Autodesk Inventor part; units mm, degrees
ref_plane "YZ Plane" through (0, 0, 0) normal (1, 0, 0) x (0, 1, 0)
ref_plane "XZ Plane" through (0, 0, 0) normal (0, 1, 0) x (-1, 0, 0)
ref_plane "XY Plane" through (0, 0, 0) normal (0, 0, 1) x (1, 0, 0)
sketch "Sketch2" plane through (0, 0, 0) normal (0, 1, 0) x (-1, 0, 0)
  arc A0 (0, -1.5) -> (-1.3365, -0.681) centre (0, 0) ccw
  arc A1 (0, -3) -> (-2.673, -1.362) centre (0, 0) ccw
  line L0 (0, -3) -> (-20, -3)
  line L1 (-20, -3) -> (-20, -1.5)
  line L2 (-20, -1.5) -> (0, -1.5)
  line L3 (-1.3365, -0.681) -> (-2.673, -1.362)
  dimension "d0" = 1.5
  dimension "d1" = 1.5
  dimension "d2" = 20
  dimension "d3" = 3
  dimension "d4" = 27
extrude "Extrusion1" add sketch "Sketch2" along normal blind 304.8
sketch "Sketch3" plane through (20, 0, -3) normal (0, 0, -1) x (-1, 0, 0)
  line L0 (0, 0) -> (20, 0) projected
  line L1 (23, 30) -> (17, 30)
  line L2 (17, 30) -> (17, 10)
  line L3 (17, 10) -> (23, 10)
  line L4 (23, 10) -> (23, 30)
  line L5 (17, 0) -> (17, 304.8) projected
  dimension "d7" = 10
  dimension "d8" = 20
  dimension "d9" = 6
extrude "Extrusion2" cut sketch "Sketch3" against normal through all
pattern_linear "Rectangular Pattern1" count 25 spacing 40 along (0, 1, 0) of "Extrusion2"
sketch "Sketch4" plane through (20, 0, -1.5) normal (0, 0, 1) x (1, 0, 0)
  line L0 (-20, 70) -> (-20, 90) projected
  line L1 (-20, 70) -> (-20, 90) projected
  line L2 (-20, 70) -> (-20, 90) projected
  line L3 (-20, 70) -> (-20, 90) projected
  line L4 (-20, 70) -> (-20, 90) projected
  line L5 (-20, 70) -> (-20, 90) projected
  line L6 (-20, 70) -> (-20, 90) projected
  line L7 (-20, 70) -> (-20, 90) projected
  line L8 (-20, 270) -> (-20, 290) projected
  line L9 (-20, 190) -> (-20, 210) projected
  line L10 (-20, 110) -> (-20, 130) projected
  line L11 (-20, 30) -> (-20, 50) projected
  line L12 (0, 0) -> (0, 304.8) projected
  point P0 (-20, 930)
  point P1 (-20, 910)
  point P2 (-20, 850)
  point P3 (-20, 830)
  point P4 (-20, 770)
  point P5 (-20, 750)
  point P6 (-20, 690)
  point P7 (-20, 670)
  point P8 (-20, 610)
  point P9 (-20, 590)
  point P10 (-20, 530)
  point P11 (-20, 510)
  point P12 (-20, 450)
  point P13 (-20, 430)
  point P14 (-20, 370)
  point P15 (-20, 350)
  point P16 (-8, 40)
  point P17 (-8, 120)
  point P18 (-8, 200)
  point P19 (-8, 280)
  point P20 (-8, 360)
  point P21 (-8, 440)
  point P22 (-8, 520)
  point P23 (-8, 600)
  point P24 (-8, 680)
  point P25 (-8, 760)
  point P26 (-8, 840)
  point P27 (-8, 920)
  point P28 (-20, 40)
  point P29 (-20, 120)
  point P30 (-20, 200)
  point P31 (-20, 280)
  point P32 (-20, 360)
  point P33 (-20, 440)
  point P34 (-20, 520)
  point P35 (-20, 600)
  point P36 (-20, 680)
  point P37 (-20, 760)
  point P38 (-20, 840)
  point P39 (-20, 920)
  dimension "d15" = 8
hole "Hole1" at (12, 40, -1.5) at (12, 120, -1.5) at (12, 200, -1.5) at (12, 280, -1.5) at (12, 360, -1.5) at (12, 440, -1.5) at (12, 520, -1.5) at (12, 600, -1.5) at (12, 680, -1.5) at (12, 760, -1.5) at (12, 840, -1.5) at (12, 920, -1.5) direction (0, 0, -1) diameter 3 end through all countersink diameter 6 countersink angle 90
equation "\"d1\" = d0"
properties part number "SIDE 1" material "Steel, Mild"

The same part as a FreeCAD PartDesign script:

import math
import FreeCAD as App
import Part
import Sketcher
from FreeCAD import Vector
Q = App.Units.Quantity

doc = App.newDocument("Part")
body = doc.addObject("PartDesign::Body", "Body")

# Sketch on XZ plane
sketch1 = body.newObject("Sketcher::SketchObject", "Sketch")
sketch1.AttachmentSupport = (doc.getObject("XZ_Plane"), [""])
sketch1.MapMode = "FlatFace"
sketch1.addGeometry(Part.ArcOfCircle(Part.Circle(Vector(0, 0, 0), Vector(0, 0, 1), 1.5), math.radians(-27), math.radians(270)), False)
sketch1.addGeometry(Part.LineSegment(Vector(0, -1.5, 0), Vector(20, -1.5, 0)), False)
sketch1.addGeometry(Part.LineSegment(Vector(20, -1.5, 0), Vector(20, -3, 0)), False)
sketch1.addGeometry(Part.LineSegment(Vector(20, -3, 0), Vector(0, -3, 0)), False)
sketch1.addGeometry(Part.ArcOfCircle(Part.Circle(Vector(0, 0, 0), Vector(0, 0, 1), 3), math.radians(-27), math.radians(270)), False)
sketch1.addGeometry(Part.LineSegment(Vector(2.7, -1.4, 0), Vector(1.3, -0.7, 0)), False)
sketch1.addConstraint(Sketcher.Constraint("Tangent", 0, 2, 1, 1))
sketch1.addConstraint(Sketcher.Constraint("Coincident", 1, 2, 2, 1))
sketch1.addConstraint(Sketcher.Constraint("Coincident", 2, 2, 3, 1))
sketch1.addConstraint(Sketcher.Constraint("Tangent", 3, 2, 4, 2))
sketch1.addConstraint(Sketcher.Constraint("Coincident", 4, 1, 5, 1))
sketch1.addConstraint(Sketcher.Constraint("Coincident", 5, 2, 0, 1))
sketch1.addConstraint(Sketcher.Constraint("Horizontal", 1))
sketch1.addConstraint(Sketcher.Constraint("Vertical", 2))
sketch1.addConstraint(Sketcher.Constraint("Horizontal", 3))
sketch1.addConstraint(Sketcher.Constraint("Coincident", 0, 3, -1, 1))
sketch1.addConstraint(Sketcher.Constraint("Coincident", 4, 3, -1, 1))
sketch1.addConstraint(Sketcher.Constraint("Radius", 4, Q("3 mm")))
sketch1.addConstraint(Sketcher.Constraint("Radius", 0, Q("1.5 mm")))
sketch1.addConstraint(Sketcher.Constraint("DistanceX", 1, 1, 1, 2, Q("20 mm")))
sketch1.addConstraint(Sketcher.Constraint("Angle", 5, Q("152.9993 deg")))
sketch1.addConstraint(Sketcher.Constraint("DistanceX", -1, 1, 4, 1, Q("2.673 mm")))
pad1 = body.newObject("PartDesign::Pad", "Pad")
pad1.Profile = sketch1
pad1.Length = 304.8
pad1.Reversed = True

# Sketch on XY plane
sketch2 = body.newObject("Sketcher::SketchObject", "Sketch001")
sketch2.AttachmentSupport = (doc.getObject("XY_Plane"), [""])
sketch2.MapMode = "FlatFace"
sketch2.AttachmentOffset = App.Placement(Vector(0, 0, -3), App.Rotation())
sketch2.addGeometry(Part.LineSegment(Vector(-3, 10, 0), Vector(-3, 30, 0)), False)
sketch2.addGeometry(Part.LineSegment(Vector(-3, 30, 0), Vector(3, 30, 0)), False)
sketch2.addGeometry(Part.LineSegment(Vector(3, 30, 0), Vector(3, 10, 0)), False)
sketch2.addGeometry(Part.LineSegment(Vector(3, 10, 0), Vector(-3, 10, 0)), False)
sketch2.addConstraint(Sketcher.Constraint("Coincident", 0, 2, 1, 1))
sketch2.addConstraint(Sketcher.Constraint("Coincident", 1, 2, 2, 1))
sketch2.addConstraint(Sketcher.Constraint("Coincident", 2, 2, 3, 1))
sketch2.addConstraint(Sketcher.Constraint("Coincident", 3, 2, 0, 1))
sketch2.addConstraint(Sketcher.Constraint("Vertical", 0))
sketch2.addConstraint(Sketcher.Constraint("Horizontal", 1))
sketch2.addConstraint(Sketcher.Constraint("Vertical", 2))
sketch2.addConstraint(Sketcher.Constraint("Horizontal", 3))
sketch2.addConstraint(Sketcher.Constraint("DistanceX", 1, 1, 1, 2, Q("6 mm")))
sketch2.addConstraint(Sketcher.Constraint("DistanceY", 0, 1, 0, 2, Q("20 mm")))
sketch2.addConstraint(Sketcher.Constraint("DistanceY", -1, 1, 2, 2, Q("10 mm")))
sketch2.addConstraint(Sketcher.Constraint("DistanceX", 0, 2, -1, 1, Q("3 mm")))
pocket1 = body.newObject("PartDesign::Pocket", "Pocket")
pocket1.Profile = sketch2
pocket1.Type = "ThroughAll"
pocket1.Reversed = True
doc.recompute()

linearpattern = body.newObject("PartDesign::LinearPattern", "LinearPattern")
linearpattern.Originals = [pocket1]
linearpattern.Direction = (doc.getObject("Y_Axis"), [""])
linearpattern.Mode = "offset"
linearpattern.Offset = 40
linearpattern.Occurrences = 25
body.Tip = linearpattern

# Sketch on XY plane
sketch3 = body.newObject("Sketcher::SketchObject", "Sketch002")
sketch3.AttachmentSupport = (doc.getObject("XY_Plane"), [""])
sketch3.MapMode = "FlatFace"
sketch3.AttachmentOffset = App.Placement(Vector(0, 0, -1.5), App.Rotation())
sketch3.addGeometry(Part.Circle(Vector(12, 40, 0), Vector(0, 0, 1), 1.5), False)
sketch3.addGeometry(Part.Circle(Vector(12, 120, 0), Vector(0, 0, 1), 1.5), False)
sketch3.addGeometry(Part.Circle(Vector(12, 200, 0), Vector(0, 0, 1), 1.5), False)
sketch3.addGeometry(Part.Circle(Vector(12, 280, 0), Vector(0, 0, 1), 1.5), False)
sketch3.addGeometry(Part.Circle(Vector(12, 360, 0), Vector(0, 0, 1), 1.5), False)
sketch3.addGeometry(Part.Circle(Vector(12, 440, 0), Vector(0, 0, 1), 1.5), False)
sketch3.addGeometry(Part.Circle(Vector(12, 520, 0), Vector(0, 0, 1), 1.5), False)
sketch3.addGeometry(Part.Circle(Vector(12, 600, 0), Vector(0, 0, 1), 1.5), False)
sketch3.addGeometry(Part.Circle(Vector(12, 680, 0), Vector(0, 0, 1), 1.5), False)
sketch3.addGeometry(Part.Circle(Vector(12, 760, 0), Vector(0, 0, 1), 1.5), False)
sketch3.addGeometry(Part.Circle(Vector(12, 840, 0), Vector(0, 0, 1), 1.5), False)
sketch3.addGeometry(Part.Circle(Vector(12, 920, 0), Vector(0, 0, 1), 1.5), False)
sketch3.addConstraint(Sketcher.Constraint("Equal", 0, 1))
sketch3.addConstraint(Sketcher.Constraint("Equal", 1, 2))
sketch3.addConstraint(Sketcher.Constraint("Equal", 2, 3))
sketch3.addConstraint(Sketcher.Constraint("Equal", 3, 4))
sketch3.addConstraint(Sketcher.Constraint("Equal", 4, 5))
sketch3.addConstraint(Sketcher.Constraint("Equal", 5, 6))
sketch3.addConstraint(Sketcher.Constraint("Equal", 6, 7))
sketch3.addConstraint(Sketcher.Constraint("Equal", 7, 8))
sketch3.addConstraint(Sketcher.Constraint("Equal", 8, 9))
sketch3.addConstraint(Sketcher.Constraint("Equal", 9, 10))
sketch3.addConstraint(Sketcher.Constraint("Equal", 10, 11))
sketch3.addConstraint(Sketcher.Constraint("Vertical", 0, 3, 1, 3))
sketch3.addConstraint(Sketcher.Constraint("Vertical", 1, 3, 2, 3))
sketch3.addConstraint(Sketcher.Constraint("Vertical", 2, 3, 3, 3))
sketch3.addConstraint(Sketcher.Constraint("Vertical", 3, 3, 4, 3))
sketch3.addConstraint(Sketcher.Constraint("Vertical", 4, 3, 5, 3))
sketch3.addConstraint(Sketcher.Constraint("Vertical", 5, 3, 6, 3))
sketch3.addConstraint(Sketcher.Constraint("Vertical", 6, 3, 7, 3))
sketch3.addConstraint(Sketcher.Constraint("Vertical", 7, 3, 8, 3))
sketch3.addConstraint(Sketcher.Constraint("Vertical", 8, 3, 9, 3))
sketch3.addConstraint(Sketcher.Constraint("Vertical", 9, 3, 10, 3))
sketch3.addConstraint(Sketcher.Constraint("Vertical", 10, 3, 11, 3))
sketch3.addConstraint(Sketcher.Constraint("Diameter", 0, Q("3 mm")))
sketch3.addConstraint(Sketcher.Constraint("DistanceX", -1, 1, 0, 3, Q("12 mm")))
sketch3.addConstraint(Sketcher.Constraint("DistanceY", -1, 1, 0, 3, Q("40 mm")))
sketch3.addConstraint(Sketcher.Constraint("DistanceY", -1, 1, 1, 3, Q("120 mm")))
sketch3.addConstraint(Sketcher.Constraint("DistanceY", -1, 1, 2, 3, Q("200 mm")))
sketch3.addConstraint(Sketcher.Constraint("DistanceY", -1, 1, 3, 3, Q("280 mm")))
sketch3.addConstraint(Sketcher.Constraint("DistanceY", -1, 1, 4, 3, Q("360 mm")))
sketch3.addConstraint(Sketcher.Constraint("DistanceY", -1, 1, 5, 3, Q("440 mm")))
sketch3.addConstraint(Sketcher.Constraint("DistanceY", -1, 1, 6, 3, Q("520 mm")))
sketch3.addConstraint(Sketcher.Constraint("DistanceY", -1, 1, 7, 3, Q("600 mm")))
sketch3.addConstraint(Sketcher.Constraint("DistanceY", -1, 1, 8, 3, Q("680 mm")))
sketch3.addConstraint(Sketcher.Constraint("DistanceY", -1, 1, 9, 3, Q("760 mm")))
sketch3.addConstraint(Sketcher.Constraint("DistanceY", -1, 1, 10, 3, Q("840 mm")))
sketch3.addConstraint(Sketcher.Constraint("DistanceY", -1, 1, 11, 3, Q("920 mm")))
doc.recompute()
hole = body.newObject("PartDesign::Hole", "Hole")
hole.Profile = sketch3
hole.ThreadType = "None"
hole.Diameter = 3
hole.DepthType = "ThroughAll"
hole.HoleCutType = "Countersink"
hole.HoleCutDiameter = 6
hole.HoleCutCountersinkAngle = 90

doc.recompute()
